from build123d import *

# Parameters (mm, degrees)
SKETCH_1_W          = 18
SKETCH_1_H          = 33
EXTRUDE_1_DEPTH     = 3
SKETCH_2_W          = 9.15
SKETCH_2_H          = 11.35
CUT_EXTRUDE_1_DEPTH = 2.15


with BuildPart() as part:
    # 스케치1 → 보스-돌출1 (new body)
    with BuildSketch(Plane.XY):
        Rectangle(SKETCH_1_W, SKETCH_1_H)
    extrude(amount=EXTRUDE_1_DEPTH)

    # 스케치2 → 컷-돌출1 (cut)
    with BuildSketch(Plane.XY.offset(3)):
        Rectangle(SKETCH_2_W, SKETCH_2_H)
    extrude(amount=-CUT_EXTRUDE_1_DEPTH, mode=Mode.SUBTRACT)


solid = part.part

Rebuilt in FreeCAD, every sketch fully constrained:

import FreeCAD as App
import Part
import Sketcher
from FreeCAD import Vector
Q = App.Units.Quantity


def add_polygon(sketch, points):
    """Adds a closed chain of lines whose ends are joined by coincident constraints."""
    first, n = sketch.GeometryCount, len(points)
    for a, b in zip(points, points[1:] + points[:1]):
        sketch.addGeometry(Part.LineSegment(App.Vector(*a, 0), App.Vector(*b, 0)), False)
    for i in range(n):
        sketch.addConstraint(Sketcher.Constraint("Coincident", first + i, 2, first + (i + 1) % n, 1))

doc = App.newDocument("Part")
body = doc.addObject("PartDesign::Body", "Body")

sketch1 = doc.addObject("Sketcher::SketchObject", "Sketch")
body.addObject(sketch1)
sketch1.AttachmentSupport = (doc.XY_Plane, [""])
sketch1.MapMode = "FlatFace"
add_polygon(sketch1, [(-9, 16), (-9, -16), (9, -16), (9, 16)])
sketch1.addConstraint(Sketcher.Constraint("Vertical", 0))
sketch1.addConstraint(Sketcher.Constraint("Horizontal", 1))
sketch1.addConstraint(Sketcher.Constraint("Vertical", 2))
sketch1.addConstraint(Sketcher.Constraint("Horizontal", 3))
sketch1.addConstraint(Sketcher.Constraint("Symmetric", 0, 2, 2, 2, -1, 1))
sketch1.addConstraint(Sketcher.Constraint("DistanceX", 1, 1, 1, 2, Q("18 mm")))
sketch1.addConstraint(Sketcher.Constraint("DistanceY", 0, 2, 0, 1, Q("33 mm")))
pad1 = doc.addObject("PartDesign::Pad", "Pad")
body.addObject(pad1)
pad1.Profile = sketch1
pad1.Length = 3

sketch2 = doc.addObject("Sketcher::SketchObject", "Sketch001")
body.addObject(sketch2)
sketch2.AttachmentSupport = (doc.XY_Plane, [""])
sketch2.MapMode = "FlatFace"
sketch2.AttachmentOffset = App.Placement(Vector(0, 0, 3), App.Rotation())
add_polygon(sketch2, [(-5, 6), (-5, -6), (5, -6), (5, 6)])
sketch2.addConstraint(Sketcher.Constraint("Vertical", 0))
sketch2.addConstraint(Sketcher.Constraint("Horizontal", 1))
sketch2.addConstraint(Sketcher.Constraint("Vertical", 2))
sketch2.addConstraint(Sketcher.Constraint("Horizontal", 3))
sketch2.addConstraint(Sketcher.Constraint("Symmetric", 0, 2, 2, 2, -1, 1))
sketch2.addConstraint(Sketcher.Constraint("DistanceX", 1, 1, 1, 2, Q("9.15 mm")))
sketch2.addConstraint(Sketcher.Constraint("DistanceY", 0, 2, 0, 1, Q("11.35 mm")))
pocket1 = doc.addObject("PartDesign::Pocket", "Pocket")
body.addObject(pocket1)
pocket1.Profile = sketch2
pocket1.Length = 2.15

doc.recompute()
